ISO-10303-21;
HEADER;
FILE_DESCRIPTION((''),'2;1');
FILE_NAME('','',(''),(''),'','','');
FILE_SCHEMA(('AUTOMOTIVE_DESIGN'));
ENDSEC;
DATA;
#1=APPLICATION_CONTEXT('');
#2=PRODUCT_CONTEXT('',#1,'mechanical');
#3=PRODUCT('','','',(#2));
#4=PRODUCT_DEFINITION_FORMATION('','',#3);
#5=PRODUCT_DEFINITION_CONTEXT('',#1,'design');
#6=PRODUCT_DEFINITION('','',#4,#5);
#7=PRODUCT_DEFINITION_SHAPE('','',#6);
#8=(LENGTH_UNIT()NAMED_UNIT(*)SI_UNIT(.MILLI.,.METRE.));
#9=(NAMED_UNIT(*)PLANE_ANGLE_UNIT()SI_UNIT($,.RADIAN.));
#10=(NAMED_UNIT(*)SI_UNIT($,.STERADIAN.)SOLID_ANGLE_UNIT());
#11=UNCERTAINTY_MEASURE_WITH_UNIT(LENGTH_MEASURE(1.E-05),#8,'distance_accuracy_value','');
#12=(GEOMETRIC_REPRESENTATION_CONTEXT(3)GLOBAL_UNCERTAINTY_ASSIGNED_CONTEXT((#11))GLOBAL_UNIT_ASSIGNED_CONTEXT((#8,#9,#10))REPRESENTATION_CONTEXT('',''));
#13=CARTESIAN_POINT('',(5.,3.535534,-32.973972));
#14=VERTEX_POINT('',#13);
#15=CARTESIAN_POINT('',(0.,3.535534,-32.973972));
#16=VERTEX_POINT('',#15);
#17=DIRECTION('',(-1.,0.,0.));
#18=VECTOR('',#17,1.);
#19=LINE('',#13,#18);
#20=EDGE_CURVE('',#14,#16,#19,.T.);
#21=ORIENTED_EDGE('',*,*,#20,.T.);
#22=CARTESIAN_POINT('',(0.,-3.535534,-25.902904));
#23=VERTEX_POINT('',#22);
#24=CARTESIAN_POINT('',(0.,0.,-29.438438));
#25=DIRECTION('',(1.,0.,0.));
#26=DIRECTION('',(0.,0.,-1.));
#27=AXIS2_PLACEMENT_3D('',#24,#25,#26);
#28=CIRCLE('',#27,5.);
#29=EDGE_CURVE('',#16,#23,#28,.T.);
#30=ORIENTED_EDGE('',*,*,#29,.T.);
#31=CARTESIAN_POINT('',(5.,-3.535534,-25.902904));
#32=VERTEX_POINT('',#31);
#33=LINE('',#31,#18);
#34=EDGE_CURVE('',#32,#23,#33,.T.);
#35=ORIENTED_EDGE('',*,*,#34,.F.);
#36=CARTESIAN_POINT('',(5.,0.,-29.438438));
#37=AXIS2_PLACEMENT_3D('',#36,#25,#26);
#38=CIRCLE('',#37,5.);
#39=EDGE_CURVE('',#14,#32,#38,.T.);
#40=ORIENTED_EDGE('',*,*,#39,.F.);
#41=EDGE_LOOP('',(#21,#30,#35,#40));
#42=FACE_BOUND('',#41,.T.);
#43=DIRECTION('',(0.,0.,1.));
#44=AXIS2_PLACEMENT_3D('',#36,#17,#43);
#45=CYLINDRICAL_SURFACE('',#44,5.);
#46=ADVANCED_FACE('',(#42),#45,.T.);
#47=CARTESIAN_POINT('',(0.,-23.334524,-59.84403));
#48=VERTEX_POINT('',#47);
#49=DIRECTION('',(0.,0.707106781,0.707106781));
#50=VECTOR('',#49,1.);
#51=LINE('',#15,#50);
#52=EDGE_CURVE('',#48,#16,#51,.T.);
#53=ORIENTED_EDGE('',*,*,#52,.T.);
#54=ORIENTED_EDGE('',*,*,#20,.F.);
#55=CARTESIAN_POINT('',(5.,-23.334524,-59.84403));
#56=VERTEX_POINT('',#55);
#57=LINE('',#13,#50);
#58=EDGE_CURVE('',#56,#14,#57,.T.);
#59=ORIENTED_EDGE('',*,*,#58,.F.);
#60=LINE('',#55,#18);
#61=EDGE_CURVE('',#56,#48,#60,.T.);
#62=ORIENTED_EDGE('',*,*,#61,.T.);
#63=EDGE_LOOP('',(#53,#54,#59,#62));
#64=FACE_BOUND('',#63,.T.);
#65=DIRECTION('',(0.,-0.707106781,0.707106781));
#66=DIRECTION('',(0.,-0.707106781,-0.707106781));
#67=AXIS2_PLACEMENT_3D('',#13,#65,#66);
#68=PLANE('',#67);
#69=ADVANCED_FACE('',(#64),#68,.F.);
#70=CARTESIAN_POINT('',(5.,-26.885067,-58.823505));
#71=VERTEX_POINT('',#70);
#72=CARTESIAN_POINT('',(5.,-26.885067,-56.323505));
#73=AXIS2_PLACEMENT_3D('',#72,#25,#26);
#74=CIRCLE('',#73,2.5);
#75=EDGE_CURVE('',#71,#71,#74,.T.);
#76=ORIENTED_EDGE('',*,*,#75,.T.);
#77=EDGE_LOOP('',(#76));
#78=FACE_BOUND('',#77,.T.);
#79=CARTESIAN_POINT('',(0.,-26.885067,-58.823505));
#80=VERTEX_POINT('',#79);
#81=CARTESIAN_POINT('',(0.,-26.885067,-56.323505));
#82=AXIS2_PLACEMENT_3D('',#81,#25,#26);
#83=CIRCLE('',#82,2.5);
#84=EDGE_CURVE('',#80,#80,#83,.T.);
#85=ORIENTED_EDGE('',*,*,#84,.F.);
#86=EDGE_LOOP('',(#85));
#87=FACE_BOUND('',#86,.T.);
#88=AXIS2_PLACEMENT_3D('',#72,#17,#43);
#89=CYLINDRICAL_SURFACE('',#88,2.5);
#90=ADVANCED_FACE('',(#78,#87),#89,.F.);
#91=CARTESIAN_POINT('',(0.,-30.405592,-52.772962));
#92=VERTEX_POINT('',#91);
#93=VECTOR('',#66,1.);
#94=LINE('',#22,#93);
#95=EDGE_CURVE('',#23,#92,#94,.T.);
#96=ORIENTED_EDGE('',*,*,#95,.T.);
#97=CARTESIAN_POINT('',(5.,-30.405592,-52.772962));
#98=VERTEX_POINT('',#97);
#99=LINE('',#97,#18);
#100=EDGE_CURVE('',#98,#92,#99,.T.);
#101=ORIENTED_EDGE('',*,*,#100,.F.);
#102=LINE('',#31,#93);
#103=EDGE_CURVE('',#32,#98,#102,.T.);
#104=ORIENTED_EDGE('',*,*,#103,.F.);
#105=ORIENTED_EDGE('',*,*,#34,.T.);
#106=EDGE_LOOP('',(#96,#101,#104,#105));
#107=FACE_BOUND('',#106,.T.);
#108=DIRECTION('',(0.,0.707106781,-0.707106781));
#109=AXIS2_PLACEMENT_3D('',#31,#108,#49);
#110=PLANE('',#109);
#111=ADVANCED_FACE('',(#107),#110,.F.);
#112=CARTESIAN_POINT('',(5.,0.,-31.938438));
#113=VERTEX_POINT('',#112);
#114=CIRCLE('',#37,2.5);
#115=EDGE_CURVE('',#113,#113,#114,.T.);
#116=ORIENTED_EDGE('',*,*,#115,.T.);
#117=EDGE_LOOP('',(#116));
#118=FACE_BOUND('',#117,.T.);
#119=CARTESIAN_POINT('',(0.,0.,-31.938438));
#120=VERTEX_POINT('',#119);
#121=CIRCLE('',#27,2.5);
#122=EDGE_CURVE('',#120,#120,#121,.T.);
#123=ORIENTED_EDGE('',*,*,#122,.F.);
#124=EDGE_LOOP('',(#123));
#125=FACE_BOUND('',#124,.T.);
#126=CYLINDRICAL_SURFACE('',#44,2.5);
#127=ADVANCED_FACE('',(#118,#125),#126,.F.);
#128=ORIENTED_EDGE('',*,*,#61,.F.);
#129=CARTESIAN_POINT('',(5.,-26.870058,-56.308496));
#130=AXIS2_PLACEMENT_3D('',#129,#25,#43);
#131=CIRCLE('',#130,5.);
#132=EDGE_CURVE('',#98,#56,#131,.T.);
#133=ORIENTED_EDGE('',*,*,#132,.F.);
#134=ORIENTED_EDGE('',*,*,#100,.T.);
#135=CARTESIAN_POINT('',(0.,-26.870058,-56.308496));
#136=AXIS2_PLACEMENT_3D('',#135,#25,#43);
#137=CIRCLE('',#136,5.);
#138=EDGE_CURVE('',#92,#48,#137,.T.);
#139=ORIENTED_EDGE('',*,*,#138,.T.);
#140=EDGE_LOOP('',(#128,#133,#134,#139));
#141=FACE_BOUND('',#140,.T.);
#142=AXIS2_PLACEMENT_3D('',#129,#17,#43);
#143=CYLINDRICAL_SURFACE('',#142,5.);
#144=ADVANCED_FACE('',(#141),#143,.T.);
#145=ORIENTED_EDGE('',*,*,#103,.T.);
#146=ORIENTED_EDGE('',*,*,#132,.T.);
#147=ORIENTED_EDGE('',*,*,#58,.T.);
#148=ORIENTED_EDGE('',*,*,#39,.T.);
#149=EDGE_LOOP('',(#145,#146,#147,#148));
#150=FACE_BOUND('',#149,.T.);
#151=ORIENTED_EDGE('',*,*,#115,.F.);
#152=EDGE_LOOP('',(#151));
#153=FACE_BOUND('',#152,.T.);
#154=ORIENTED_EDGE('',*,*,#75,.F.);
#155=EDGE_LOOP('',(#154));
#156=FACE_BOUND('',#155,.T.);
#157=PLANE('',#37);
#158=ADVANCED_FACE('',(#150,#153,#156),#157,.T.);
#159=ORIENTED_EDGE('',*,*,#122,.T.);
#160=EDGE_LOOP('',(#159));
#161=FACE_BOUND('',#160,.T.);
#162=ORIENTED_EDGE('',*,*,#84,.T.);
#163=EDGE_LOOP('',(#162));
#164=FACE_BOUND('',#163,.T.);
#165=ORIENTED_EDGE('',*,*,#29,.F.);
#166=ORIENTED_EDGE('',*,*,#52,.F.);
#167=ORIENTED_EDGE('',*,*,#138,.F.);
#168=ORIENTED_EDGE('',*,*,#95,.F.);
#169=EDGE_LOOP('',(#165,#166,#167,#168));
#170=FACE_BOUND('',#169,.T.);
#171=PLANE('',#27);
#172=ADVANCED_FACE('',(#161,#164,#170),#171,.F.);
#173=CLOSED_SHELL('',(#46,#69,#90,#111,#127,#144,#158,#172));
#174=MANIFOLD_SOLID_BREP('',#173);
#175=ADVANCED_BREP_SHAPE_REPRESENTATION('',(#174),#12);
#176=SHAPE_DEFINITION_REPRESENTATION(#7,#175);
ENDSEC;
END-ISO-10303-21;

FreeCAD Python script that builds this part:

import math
import FreeCAD as App
import Part
import Sketcher

V = App.Vector
Q = App.Units.Quantity

doc = App.newDocument("Part")
body = doc.addObject("PartDesign::Body", "Body")

sketch1 = body.newObject("Sketcher::SketchObject", "Sketch")
sketch1.AttachmentSupport = (doc.getObject("YZ_Plane"), [""])
sketch1.MapMode = "FlatFace"
sketch1.addGeometry([
    Part.LineSegment(V(-23.3, -59.8, 0), V(3.5, -33, 0)),
    Part.ArcOfCircle(Part.Circle(V(0, -29.4, 0), V(0, 0, 1), 5), math.radians(-45), math.radians(135)),
    Part.LineSegment(V(-3.5, -25.9, 0), V(-30.4, -52.8, 0)),
    Part.ArcOfCircle(Part.Circle(V(-26.9, -56.3, 0), V(0, 0, 1), 5), math.radians(135), math.radians(315)),
    Part.Circle(V(-26.9, -56.3, 0), V(0, 0, 1), 2.5),
    Part.Circle(V(0, -29.4, 0), V(0, 0, 1), 2.5),
], False)
sketch1.addConstraint([
    Sketcher.Constraint("Tangent", 0, 2, 1, 1),
    Sketcher.Constraint("Tangent", 1, 2, 2, 1),
    Sketcher.Constraint("Tangent", 2, 2, 3, 1),
    Sketcher.Constraint("Tangent", 3, 2, 0, 1),
    Sketcher.Constraint("Coincident", 5, 3, 1, 3),
    Sketcher.Constraint("Equal", 1, 3),
    Sketcher.Constraint("Equal", 4, 5),
    Sketcher.Constraint("PointOnObject", 1, 3, -2),
    Sketcher.Constraint("Diameter", 4, Q("5 mm")),
    Sketcher.Constraint("Radius", 1, Q("5 mm")),
    Sketcher.Constraint("Angle", 0, Q("45 deg")),
    Sketcher.Constraint("Distance", 0, Q("38 mm")),
    Sketcher.Constraint("DistanceX", 4, 3, 0, 2, Q("30.420601 mm")),
    Sketcher.Constraint("DistanceY", 4, 3, 1, 2, Q("30.420601 mm")),
    Sketcher.Constraint("DistanceY", 1, 3, -1, 1, Q("29.438438 mm")),
])
pad1 = body.newObject("PartDesign::Pad", "Pad")
pad1.Profile = sketch1
pad1.Length = 5

doc.recompute()
